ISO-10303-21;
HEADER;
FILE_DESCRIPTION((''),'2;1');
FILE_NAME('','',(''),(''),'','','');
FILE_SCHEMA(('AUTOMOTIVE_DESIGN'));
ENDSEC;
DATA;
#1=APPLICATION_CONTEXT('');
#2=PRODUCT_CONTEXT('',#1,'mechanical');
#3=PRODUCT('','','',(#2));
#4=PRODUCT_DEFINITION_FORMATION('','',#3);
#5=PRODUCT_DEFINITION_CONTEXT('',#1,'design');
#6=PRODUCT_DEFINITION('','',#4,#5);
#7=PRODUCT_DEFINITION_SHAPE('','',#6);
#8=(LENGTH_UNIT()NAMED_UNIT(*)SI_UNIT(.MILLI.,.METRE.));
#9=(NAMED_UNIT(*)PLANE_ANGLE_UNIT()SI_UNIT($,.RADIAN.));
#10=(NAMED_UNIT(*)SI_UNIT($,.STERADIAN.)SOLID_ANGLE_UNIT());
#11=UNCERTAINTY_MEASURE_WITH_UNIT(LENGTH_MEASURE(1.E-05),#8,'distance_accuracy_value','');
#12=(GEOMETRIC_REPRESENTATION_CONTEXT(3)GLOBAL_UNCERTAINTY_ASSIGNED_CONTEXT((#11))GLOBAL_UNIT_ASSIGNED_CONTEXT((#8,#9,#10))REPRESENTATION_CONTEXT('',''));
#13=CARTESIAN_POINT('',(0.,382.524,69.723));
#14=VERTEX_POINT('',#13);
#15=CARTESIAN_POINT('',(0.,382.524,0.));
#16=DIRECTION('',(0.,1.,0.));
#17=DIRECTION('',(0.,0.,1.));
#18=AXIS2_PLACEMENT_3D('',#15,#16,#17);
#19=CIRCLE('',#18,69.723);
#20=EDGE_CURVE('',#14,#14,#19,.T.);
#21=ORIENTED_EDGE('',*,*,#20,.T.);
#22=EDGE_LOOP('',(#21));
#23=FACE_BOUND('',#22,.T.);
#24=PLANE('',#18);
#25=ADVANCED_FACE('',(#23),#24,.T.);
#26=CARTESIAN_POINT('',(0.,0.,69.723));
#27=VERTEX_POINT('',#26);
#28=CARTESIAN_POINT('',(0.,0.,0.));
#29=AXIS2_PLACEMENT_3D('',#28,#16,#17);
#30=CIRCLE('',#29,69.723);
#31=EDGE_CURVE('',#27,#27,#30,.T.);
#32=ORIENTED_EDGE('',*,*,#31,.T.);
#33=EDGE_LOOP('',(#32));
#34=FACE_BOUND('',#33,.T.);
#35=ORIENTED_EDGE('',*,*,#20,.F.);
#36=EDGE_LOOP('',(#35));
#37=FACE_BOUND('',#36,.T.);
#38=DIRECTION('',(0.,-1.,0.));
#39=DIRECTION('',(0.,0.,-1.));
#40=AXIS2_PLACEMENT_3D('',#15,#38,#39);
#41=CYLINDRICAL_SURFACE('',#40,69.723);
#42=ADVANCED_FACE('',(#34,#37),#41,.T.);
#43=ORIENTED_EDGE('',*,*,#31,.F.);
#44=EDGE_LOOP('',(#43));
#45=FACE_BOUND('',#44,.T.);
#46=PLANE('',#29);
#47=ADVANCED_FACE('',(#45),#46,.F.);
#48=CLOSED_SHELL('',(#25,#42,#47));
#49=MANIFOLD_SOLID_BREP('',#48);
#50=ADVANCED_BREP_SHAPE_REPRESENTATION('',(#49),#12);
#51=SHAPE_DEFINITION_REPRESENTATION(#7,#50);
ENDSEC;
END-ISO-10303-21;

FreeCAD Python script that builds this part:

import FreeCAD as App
import Part
import Sketcher

V = App.Vector
Q = App.Units.Quantity

doc = App.newDocument("Part")
body = doc.addObject("PartDesign::Body", "Body")

sketch1 = body.newObject("Sketcher::SketchObject", "Sketch")
sketch1.AttachmentSupport = (doc.getObject("XZ_Plane"), [""])
sketch1.MapMode = "FlatFace"
sketch1.addGeometry(Part.Circle(V(0, 0, 0), V(0, 0, 1), 70), False)
sketch1.addConstraint(Sketcher.Constraint("Coincident", 0, 3, -1, 1))
sketch1.addConstraint(Sketcher.Constraint("Diameter", 0, Q("5.49 in")))
pad1 = body.newObject("PartDesign::Pad", "Pad")
pad1.Profile = sketch1
pad1.Length = Q("15.06 in")
pad1.Reversed = True

doc.recompute()
